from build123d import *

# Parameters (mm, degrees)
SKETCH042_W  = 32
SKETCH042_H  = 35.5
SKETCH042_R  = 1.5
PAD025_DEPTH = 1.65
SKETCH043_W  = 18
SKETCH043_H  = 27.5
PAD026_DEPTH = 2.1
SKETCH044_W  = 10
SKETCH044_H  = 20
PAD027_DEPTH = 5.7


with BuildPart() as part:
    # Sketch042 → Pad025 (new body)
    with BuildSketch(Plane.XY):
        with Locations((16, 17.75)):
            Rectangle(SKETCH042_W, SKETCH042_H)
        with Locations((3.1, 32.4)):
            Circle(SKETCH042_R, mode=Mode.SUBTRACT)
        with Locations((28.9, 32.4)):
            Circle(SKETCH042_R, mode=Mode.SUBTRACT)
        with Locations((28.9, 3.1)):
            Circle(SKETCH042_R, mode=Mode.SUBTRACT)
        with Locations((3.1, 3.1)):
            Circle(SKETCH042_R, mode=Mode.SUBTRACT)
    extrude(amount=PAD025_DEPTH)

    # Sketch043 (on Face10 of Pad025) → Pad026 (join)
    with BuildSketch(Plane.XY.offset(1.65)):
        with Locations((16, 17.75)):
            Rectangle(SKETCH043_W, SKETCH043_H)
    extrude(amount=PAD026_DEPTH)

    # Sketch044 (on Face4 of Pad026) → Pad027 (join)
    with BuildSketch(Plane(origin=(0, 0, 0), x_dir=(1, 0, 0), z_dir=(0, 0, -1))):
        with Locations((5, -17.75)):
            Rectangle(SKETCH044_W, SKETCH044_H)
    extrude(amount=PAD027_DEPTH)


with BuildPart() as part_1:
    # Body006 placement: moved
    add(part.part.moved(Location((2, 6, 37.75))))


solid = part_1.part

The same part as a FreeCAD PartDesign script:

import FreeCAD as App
import Part
import Sketcher
Q = App.Units.Quantity

doc = App.newDocument("Part")
body = doc.addObject("PartDesign::Body", "Body")

# Sketch on XY plane
sketch1 = body.newObject("Sketcher::SketchObject", "Sketch")
sketch1.AttachmentSupport = (doc.getObject("XY_Plane"), [""])
sketch1.MapMode = "FlatFace"
sketch1.addGeometry([
    Part.LineSegment(App.Vector(0, 35.5, 0), App.Vector(0, 0, 0)),  # 0
    Part.LineSegment(App.Vector(0, 0, 0), App.Vector(32, 0, 0)),  # 1
    Part.LineSegment(App.Vector(32, 0, 0), App.Vector(32, 35.5, 0)),  # 2
    Part.LineSegment(App.Vector(32, 35.5, 0), App.Vector(0, 35.5, 0)),  # 3
    Part.Circle(App.Vector(3.1, 3.1, 0), App.Vector(0, 0, 1), 1.5),  # 4
    Part.Circle(App.Vector(28.9, 3.1, 0), App.Vector(0, 0, 1), 1.5),  # 5
    Part.Circle(App.Vector(3.1, 32.4, 0), App.Vector(0, 0, 1), 1.5),  # 6
    Part.Circle(App.Vector(28.9, 32.4, 0), App.Vector(0, 0, 1), 1.5),  # 7
], False)
sketch1.addConstraint([
    Sketcher.Constraint("Coincident", 0, 2, 1, 1),
    Sketcher.Constraint("Coincident", 1, 2, 2, 1),
    Sketcher.Constraint("Coincident", 2, 2, 3, 1),
    Sketcher.Constraint("Coincident", 3, 2, 0, 1),
    Sketcher.Constraint("Vertical", 0),
    Sketcher.Constraint("Horizontal", 1),
    Sketcher.Constraint("Vertical", 2),
    Sketcher.Constraint("Horizontal", 3),
    Sketcher.Constraint("Coincident", 0, 2, -1, 1),
    Sketcher.Constraint("Equal", 4, 5),
    Sketcher.Constraint("Equal", 5, 6),
    Sketcher.Constraint("Equal", 6, 7),
    Sketcher.Constraint("Horizontal", 4, 3, 5, 3),
    Sketcher.Constraint("Horizontal", 6, 3, 7, 3),
    Sketcher.Constraint("Vertical", 4, 3, 6, 3),
    Sketcher.Constraint("Vertical", 5, 3, 7, 3),
    Sketcher.Constraint("Diameter", 4, Q("3 mm")),
    Sketcher.Constraint("DistanceX", 1, 1, 1, 2, Q("32 mm")),
    Sketcher.Constraint("DistanceY", 0, 2, 0, 1, Q("35.5 mm")),
    Sketcher.Constraint("DistanceX", -1, 1, 4, 3, Q("3.1 mm")),
    Sketcher.Constraint("DistanceY", -1, 1, 4, 3, Q("3.1 mm")),
    Sketcher.Constraint("DistanceX", -1, 1, 5, 3, Q("28.9 mm")),
    Sketcher.Constraint("DistanceY", -1, 1, 6, 3, Q("32.4 mm")),
])
pad1 = body.newObject("PartDesign::Pad", "Pad")
pad1.Profile = sketch1
pad1.Length = 1.65

# Sketch on XY plane
sketch2 = body.newObject("Sketcher::SketchObject", "Sketch001")
sketch2.AttachmentSupport = (doc.getObject("XY_Plane"), [""])
sketch2.MapMode = "FlatFace"
sketch2.AttachmentOffset = App.Placement(App.Vector(0, 0, 1.65), App.Rotation())
sketch2.addGeometry([
    Part.LineSegment(App.Vector(7, 32, 0), App.Vector(7, 4, 0)),
    Part.LineSegment(App.Vector(7, 4, 0), App.Vector(25, 4, 0)),
    Part.LineSegment(App.Vector(25, 4, 0), App.Vector(25, 32, 0)),
    Part.LineSegment(App.Vector(25, 32, 0), App.Vector(7, 32, 0)),
], False)
sketch2.addConstraint([
    Sketcher.Constraint("Coincident", 0, 2, 1, 1),
    Sketcher.Constraint("Coincident", 1, 2, 2, 1),
    Sketcher.Constraint("Coincident", 2, 2, 3, 1),
    Sketcher.Constraint("Coincident", 3, 2, 0, 1),
    Sketcher.Constraint("Vertical", 0),
    Sketcher.Constraint("Horizontal", 1),
    Sketcher.Constraint("Vertical", 2),
    Sketcher.Constraint("Horizontal", 3),
    Sketcher.Constraint("DistanceX", 1, 1, 1, 2, Q("18 mm")),
    Sketcher.Constraint("DistanceY", 0, 2, 0, 1, Q("27.5 mm")),
    Sketcher.Constraint("DistanceX", -1, 1, 0, 2, Q("7 mm")),
    Sketcher.Constraint("DistanceY", -1, 1, 0, 2, Q("4 mm")),
])
pad2 = body.newObject("PartDesign::Pad", "Pad001")
pad2.Profile = sketch2
pad2.Length = 2.1

# Sketch on XY plane
sketch3 = body.newObject("Sketcher::SketchObject", "Sketch002")
sketch3.AttachmentSupport = (doc.getObject("XY_Plane"), [""])
sketch3.MapMode = "FlatFace"
sketch3.addGeometry([
    Part.LineSegment(App.Vector(0, 8, 0), App.Vector(0, 28, 0)),
    Part.LineSegment(App.Vector(0, 28, 0), App.Vector(10, 28, 0)),
    Part.LineSegment(App.Vector(10, 28, 0), App.Vector(10, 8, 0)),
    Part.LineSegment(App.Vector(10, 8, 0), App.Vector(0, 8, 0)),
], False)
sketch3.addConstraint([
    Sketcher.Constraint("Coincident", 0, 2, 1, 1),
    Sketcher.Constraint("Coincident", 1, 2, 2, 1),
    Sketcher.Constraint("Coincident", 2, 2, 3, 1),
    Sketcher.Constraint("Coincident", 3, 2, 0, 1),
    Sketcher.Constraint("Vertical", 0),
    Sketcher.Constraint("Horizontal", 1),
    Sketcher.Constraint("Vertical", 2),
    Sketcher.Constraint("Horizontal", 3),
    Sketcher.Constraint("PointOnObject", 0, 2, -2),
    Sketcher.Constraint("DistanceX", 1, 1, 1, 2, Q("10 mm")),
    Sketcher.Constraint("DistanceY", 0, 1, 0, 2, Q("20 mm")),
    Sketcher.Constraint("DistanceY", -1, 1, 0, 2, Q("27.75 mm")),
])
pad3 = body.newObject("PartDesign::Pad", "Pad002")
pad3.Profile = sketch3
pad3.Length = 5.7
pad3.Reversed = True
body2 = doc.addObject("PartDesign::Body", "Body001")
doc.recompute()

body.Placement = App.Placement(App.Vector(2, 6, 37.75), App.Rotation(App.Vector(0, 0, 1), 0))
boolean = body2.newObject("PartDesign::Boolean", "Boolean")
boolean.Type = "Fuse"
boolean.addObjects([body])

doc.recompute()
